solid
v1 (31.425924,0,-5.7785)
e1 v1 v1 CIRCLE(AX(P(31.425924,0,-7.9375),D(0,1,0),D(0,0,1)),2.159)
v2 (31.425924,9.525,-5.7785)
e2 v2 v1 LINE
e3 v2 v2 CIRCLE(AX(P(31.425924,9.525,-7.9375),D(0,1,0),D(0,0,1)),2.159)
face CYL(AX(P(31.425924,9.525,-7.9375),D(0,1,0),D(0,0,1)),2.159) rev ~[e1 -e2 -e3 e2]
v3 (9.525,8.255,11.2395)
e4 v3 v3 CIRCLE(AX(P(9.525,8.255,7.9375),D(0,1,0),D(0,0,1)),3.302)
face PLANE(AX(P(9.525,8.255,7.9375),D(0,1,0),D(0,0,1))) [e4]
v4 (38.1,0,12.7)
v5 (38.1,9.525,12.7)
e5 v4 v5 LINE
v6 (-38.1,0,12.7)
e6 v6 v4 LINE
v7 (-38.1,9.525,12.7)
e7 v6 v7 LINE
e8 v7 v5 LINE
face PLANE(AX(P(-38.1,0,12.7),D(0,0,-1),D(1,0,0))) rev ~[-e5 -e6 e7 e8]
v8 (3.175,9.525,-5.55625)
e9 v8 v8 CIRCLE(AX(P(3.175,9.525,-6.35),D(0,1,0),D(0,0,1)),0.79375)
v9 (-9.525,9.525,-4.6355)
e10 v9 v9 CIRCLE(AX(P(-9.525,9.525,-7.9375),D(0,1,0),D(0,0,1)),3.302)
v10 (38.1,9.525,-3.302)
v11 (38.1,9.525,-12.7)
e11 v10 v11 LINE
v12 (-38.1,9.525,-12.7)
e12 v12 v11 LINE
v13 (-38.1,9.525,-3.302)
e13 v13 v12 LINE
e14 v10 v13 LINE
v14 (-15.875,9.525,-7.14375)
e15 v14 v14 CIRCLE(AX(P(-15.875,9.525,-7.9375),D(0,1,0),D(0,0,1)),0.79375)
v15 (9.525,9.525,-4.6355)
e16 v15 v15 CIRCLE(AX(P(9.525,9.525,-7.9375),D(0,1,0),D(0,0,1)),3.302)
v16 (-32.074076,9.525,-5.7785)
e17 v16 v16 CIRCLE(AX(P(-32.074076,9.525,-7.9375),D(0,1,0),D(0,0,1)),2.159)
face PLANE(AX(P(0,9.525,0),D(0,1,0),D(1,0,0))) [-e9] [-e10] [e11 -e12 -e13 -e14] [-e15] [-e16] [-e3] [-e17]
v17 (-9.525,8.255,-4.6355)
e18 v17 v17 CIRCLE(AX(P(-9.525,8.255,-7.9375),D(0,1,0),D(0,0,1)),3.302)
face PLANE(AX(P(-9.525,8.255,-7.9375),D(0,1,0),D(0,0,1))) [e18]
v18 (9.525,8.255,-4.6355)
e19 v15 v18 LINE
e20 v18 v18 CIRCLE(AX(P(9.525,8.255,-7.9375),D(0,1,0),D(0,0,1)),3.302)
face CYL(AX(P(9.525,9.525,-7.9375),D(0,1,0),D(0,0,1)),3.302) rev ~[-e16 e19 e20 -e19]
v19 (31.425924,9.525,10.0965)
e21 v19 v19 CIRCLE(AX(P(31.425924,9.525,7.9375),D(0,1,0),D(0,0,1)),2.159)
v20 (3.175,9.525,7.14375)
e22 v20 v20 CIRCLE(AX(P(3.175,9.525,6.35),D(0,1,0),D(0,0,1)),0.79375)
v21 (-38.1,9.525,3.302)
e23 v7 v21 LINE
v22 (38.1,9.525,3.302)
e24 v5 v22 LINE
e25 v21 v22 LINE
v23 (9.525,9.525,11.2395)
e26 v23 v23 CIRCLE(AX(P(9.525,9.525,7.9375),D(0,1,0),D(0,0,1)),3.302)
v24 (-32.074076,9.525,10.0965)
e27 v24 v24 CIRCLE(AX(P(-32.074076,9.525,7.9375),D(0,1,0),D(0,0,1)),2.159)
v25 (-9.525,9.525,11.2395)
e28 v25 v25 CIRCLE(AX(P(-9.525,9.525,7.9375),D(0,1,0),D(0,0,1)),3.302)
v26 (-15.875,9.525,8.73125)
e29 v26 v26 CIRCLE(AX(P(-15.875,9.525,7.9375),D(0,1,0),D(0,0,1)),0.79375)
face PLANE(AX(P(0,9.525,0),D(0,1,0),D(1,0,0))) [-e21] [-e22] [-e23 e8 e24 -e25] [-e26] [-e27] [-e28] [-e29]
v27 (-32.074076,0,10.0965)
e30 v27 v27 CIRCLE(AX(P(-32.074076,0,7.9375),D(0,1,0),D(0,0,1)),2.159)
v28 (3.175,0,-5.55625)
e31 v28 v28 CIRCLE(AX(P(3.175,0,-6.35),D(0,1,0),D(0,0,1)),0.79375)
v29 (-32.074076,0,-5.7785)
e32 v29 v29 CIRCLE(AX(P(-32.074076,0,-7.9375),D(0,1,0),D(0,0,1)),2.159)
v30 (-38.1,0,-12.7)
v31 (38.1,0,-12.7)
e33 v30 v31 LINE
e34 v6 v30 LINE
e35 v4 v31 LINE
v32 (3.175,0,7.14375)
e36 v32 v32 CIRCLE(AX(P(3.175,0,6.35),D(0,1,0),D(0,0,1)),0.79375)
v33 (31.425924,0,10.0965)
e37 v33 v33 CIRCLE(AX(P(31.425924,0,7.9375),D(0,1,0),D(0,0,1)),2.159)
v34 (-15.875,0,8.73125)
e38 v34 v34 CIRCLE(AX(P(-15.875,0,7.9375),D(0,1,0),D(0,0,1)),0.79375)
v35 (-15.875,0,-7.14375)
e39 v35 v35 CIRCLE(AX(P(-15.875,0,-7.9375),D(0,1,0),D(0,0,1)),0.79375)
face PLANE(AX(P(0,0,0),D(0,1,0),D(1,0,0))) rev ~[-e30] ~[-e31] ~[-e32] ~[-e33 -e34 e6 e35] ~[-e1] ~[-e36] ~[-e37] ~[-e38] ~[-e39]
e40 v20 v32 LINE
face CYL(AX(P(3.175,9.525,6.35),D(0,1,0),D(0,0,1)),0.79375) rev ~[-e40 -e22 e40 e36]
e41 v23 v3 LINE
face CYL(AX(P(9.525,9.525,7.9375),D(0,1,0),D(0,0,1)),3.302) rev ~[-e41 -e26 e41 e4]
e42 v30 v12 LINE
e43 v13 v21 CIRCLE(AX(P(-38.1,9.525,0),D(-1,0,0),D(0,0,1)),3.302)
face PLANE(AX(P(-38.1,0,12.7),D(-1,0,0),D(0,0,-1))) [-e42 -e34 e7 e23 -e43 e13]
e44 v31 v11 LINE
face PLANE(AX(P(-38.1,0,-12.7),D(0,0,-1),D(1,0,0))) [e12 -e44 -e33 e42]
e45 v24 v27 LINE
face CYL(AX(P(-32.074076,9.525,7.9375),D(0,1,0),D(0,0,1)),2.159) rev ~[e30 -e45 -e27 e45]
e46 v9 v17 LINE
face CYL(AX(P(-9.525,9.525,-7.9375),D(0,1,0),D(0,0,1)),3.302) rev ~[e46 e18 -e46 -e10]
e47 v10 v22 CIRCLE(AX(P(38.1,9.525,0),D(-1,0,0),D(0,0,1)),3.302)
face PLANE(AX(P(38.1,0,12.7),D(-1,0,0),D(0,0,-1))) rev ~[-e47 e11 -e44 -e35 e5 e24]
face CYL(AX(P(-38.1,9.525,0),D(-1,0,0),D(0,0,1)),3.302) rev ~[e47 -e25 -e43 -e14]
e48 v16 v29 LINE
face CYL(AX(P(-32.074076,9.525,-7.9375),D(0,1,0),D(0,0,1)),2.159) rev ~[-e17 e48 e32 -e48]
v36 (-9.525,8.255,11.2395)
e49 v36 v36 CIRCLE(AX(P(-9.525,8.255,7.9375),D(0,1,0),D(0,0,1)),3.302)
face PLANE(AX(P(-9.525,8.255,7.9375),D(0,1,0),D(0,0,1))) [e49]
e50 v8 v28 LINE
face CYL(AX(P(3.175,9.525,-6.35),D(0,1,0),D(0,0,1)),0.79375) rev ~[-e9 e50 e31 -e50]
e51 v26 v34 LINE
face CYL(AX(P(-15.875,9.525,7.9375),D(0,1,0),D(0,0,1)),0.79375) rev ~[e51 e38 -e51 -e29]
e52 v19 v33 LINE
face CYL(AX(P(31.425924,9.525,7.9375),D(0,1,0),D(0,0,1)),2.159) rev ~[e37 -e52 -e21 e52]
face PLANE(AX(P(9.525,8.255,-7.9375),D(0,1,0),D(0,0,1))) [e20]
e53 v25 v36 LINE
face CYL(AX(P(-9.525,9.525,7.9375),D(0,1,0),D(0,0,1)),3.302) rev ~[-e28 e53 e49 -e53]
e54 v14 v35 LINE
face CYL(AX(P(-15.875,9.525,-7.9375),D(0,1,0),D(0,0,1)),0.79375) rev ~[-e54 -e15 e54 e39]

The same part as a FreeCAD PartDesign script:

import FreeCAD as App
import Part
import Sketcher
Q = App.Units.Quantity

doc = App.newDocument("Part")
body = doc.addObject("PartDesign::Body", "Body")

sketch1 = body.newObject("Sketcher::SketchObject", "Sketch")
sketch1.AttachmentSupport = (doc.getObject("XZ_Plane"), [""])
sketch1.MapMode = "FlatFace"
sketch1.addGeometry([
    Part.LineSegment(App.Vector(-38, -13, 0), App.Vector(-38, 13, 0)),
    Part.LineSegment(App.Vector(-38, 13, 0), App.Vector(38, 13, 0)),
    Part.LineSegment(App.Vector(38, 13, 0), App.Vector(38, -13, 0)),
    Part.LineSegment(App.Vector(38, -13, 0), App.Vector(-38, -13, 0)),
], False)
sketch1.addConstraint([
    Sketcher.Constraint("Coincident", 0, 2, 1, 1),
    Sketcher.Constraint("Coincident", 1, 2, 2, 1),
    Sketcher.Constraint("Coincident", 2, 2, 3, 1),
    Sketcher.Constraint("Coincident", 3, 2, 0, 1),
    Sketcher.Constraint("Vertical", 0),
    Sketcher.Constraint("Horizontal", 1),
    Sketcher.Constraint("Vertical", 2),
    Sketcher.Constraint("Horizontal", 3),
    Sketcher.Constraint("Symmetric", 0, 2, 2, 2, -1, 1),
    Sketcher.Constraint("DistanceX", 1, 1, 1, 2, Q("3 in")),
    Sketcher.Constraint("DistanceY", 0, 1, 0, 2, Q("1 in")),
])
pad1 = body.newObject("PartDesign::Pad", "Pad")
pad1.Profile = sketch1
pad1.Length = Q("0.375 in")
pad1.Reversed = True

sketch2 = body.newObject("Sketcher::SketchObject", "Sketch001")
sketch2.AttachmentSupport = (doc.getObject("XZ_Plane"), [""])
sketch2.MapMode = "FlatFace"
sketch2.AttachmentOffset = App.Placement(App.Vector(0, 0, -0.375 * 25.4), App.Rotation())
sketch2.addGeometry([
    Part.Circle(App.Vector(-32.1, -7.9, 0), App.Vector(0, 0, 1), 2.2),
    Part.Circle(App.Vector(-32.1, 7.9, 0), App.Vector(0, 0, 1), 2.2),
    Part.Circle(App.Vector(31.4, -7.9, 0), App.Vector(0, 0, 1), 2.2),
    Part.Circle(App.Vector(31.4, 7.9, 0), App.Vector(0, 0, 1), 2.2),
], False)
sketch2.addConstraint([
    Sketcher.Constraint("Equal", 0, 1),
    Sketcher.Constraint("Equal", 1, 2),
    Sketcher.Constraint("Equal", 2, 3),
    Sketcher.Constraint("Symmetric", 0, 3, 1, 3, -1),
    Sketcher.Constraint("Symmetric", 2, 3, 3, 3, -1),
    Sketcher.Constraint("Horizontal", 0, 3, 2, 3),
    Sketcher.Constraint("Diameter", 0, Q("0.17 in")),
    Sketcher.Constraint("DistanceX", 0, 3, 2, 3, Q("2.5 in")),
    Sketcher.Constraint("DistanceY", 0, 3, -1, 1, Q("0.3125 in")),
    Sketcher.Constraint("DistanceX", 0, 3, -1, 1, 32.074076),
])
pocket1 = body.newObject("PartDesign::Pocket", "Pocket")
pocket1.Profile = sketch2
pocket1.Type = "ThroughAll"
pocket1.Reversed = True

sketch3 = body.newObject("Sketcher::SketchObject", "Sketch002")
sketch3.AttachmentSupport = (doc.getObject("XZ_Plane"), [""])
sketch3.MapMode = "FlatFace"
sketch3.AttachmentOffset = App.Placement(App.Vector(0, 0, -0.375 * 25.4), App.Rotation())
sketch3.addGeometry([
    Part.Circle(App.Vector(-9.5, -7.9, 0), App.Vector(0, 0, 1), 3.3),
    Part.Circle(App.Vector(-9.5, 7.9, 0), App.Vector(0, 0, 1), 3.3),
    Part.Circle(App.Vector(9.5, 7.9, 0), App.Vector(0, 0, 1), 3.3),
    Part.Circle(App.Vector(9.5, -7.9, 0), App.Vector(0, 0, 1), 3.3),
], False)
sketch3.addConstraint([
    Sketcher.Constraint("Equal", 0, 1),
    Sketcher.Constraint("Equal", 1, 2),
    Sketcher.Constraint("Equal", 2, 3),
    Sketcher.Constraint("Symmetric", 0, 3, 2, 3, -1, 1),
    Sketcher.Constraint("Symmetric", 1, 3, 3, 3, -1, 1),
    Sketcher.Constraint("Symmetric", 1, 3, 2, 3, -2),
    Sketcher.Constraint("Diameter", 0, Q("0.26 in")),
    Sketcher.Constraint("DistanceX", 1, 3, 2, 3, Q("0.75 in")),
    Sketcher.Constraint("DistanceY", 0, 3, -1, 1, Q("0.3125 in")),
])
pocket2 = body.newObject("PartDesign::Pocket", "Pocket001")
pocket2.Profile = sketch3
pocket2.Length = Q("0.05 in")
pocket2.Reversed = True

sketch4 = body.newObject("Sketcher::SketchObject", "Sketch003")
sketch4.AttachmentSupport = (doc.getObject("XZ_Plane"), [""])
sketch4.MapMode = "FlatFace"
sketch4.AttachmentOffset = App.Placement(App.Vector(0, 0, -0.375 * 25.4), App.Rotation())
sketch4.addGeometry([
    Part.Circle(App.Vector(-15.9, -7.9, 0), App.Vector(0, 0, 1), 0.8),
    Part.Circle(App.Vector(-15.9, 7.9, 0), App.Vector(0, 0, 1), 0.8),
    Part.Circle(App.Vector(3.2, -6.3, 0), App.Vector(0, 0, 1), 0.8),
    Part.Circle(App.Vector(3.2, 6.3, 0), App.Vector(0, 0, 1), 0.8),
], False)
sketch4.addConstraint([
    Sketcher.Constraint("Equal", 0, 1),
    Sketcher.Constraint("Equal", 1, 2),
    Sketcher.Constraint("Equal", 2, 3),
    Sketcher.Constraint("Symmetric", 0, 3, 1, 3, -1),
    Sketcher.Constraint("Symmetric", 2, 3, 3, 3, -1),
    Sketcher.Constraint("Diameter", 0, Q("0.0625 in")),
    Sketcher.Constraint("DistanceY", 2, 3, 3, 3, Q("0.5 in")),
    Sketcher.Constraint("DistanceX", 0, 3, 2, 3, Q("0.75 in")),
    Sketcher.Constraint("DistanceX", 0, 3, -1, 1, Q("0.625 in")),
    Sketcher.Constraint("DistanceY", 0, 3, -1, 1, Q("0.3125 in")),
])
pocket3 = body.newObject("PartDesign::Pocket", "Pocket002")
pocket3.Profile = sketch4
pocket3.Type = "ThroughAll"
pocket3.Reversed = True

sketch5 = body.newObject("Sketcher::SketchObject", "Sketch004")
sketch5.AttachmentSupport = (doc.getObject("YZ_Plane"), [""])
sketch5.MapMode = "FlatFace"
sketch5.AttachmentOffset = App.Placement(App.Vector(0, 0, -1.5 * 25.4), App.Rotation())
sketch5.addGeometry(Part.Circle(App.Vector(9.5, 0, 0), App.Vector(0, 0, 1), 3.3), False)
sketch5.addConstraint([
    Sketcher.Constraint("PointOnObject", 0, 3, -1),
    Sketcher.Constraint("Diameter", 0, Q("0.26 in")),
    Sketcher.Constraint("DistanceX", -1, 1, 0, 3, Q("0.375 in")),
])
pocket4 = body.newObject("PartDesign::Pocket", "Pocket003")
pocket4.Profile = sketch5
pocket4.Type = "ThroughAll"
pocket4.Reversed = True

doc.recompute()
